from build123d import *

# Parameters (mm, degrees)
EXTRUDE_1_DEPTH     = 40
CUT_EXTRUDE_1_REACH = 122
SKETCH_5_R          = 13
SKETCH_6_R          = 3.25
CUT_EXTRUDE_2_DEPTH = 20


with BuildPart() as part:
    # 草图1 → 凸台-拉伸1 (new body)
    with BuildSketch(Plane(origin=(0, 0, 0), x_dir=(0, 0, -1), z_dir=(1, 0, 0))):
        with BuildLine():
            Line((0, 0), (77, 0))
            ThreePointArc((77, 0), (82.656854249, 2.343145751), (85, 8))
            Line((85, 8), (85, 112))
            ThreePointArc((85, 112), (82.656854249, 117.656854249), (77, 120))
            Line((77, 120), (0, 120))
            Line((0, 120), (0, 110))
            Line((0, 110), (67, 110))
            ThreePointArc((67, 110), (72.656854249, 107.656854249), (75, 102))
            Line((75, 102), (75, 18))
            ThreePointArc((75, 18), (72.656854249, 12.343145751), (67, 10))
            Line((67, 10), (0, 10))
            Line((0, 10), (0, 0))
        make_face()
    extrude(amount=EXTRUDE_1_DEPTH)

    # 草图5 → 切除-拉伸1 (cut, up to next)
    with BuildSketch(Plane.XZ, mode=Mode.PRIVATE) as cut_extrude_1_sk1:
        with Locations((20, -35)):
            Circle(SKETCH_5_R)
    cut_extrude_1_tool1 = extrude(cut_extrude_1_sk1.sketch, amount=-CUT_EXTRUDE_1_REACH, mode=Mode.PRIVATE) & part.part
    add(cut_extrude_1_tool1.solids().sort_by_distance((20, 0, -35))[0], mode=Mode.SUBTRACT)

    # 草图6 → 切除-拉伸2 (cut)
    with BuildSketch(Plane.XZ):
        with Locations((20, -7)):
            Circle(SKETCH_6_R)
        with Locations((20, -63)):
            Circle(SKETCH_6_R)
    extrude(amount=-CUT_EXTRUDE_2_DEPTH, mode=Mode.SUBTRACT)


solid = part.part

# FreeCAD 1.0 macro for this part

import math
import FreeCAD as App
import Part
import Sketcher

doc = App.newDocument("Part")
body = doc.addObject("PartDesign::Body", "Body")

# Sketch on YZ plane
sketch1 = body.newObject("Sketcher::SketchObject", "Sketch")
sketch1.AttachmentSupport = (doc.getObject("YZ_Plane"), [""])
sketch1.MapMode = "FlatFace"
sketch1.addGeometry([
    Part.LineSegment(App.Vector(0, 0, 0), App.Vector(0, -77, 0)),  # 0
    Part.ArcOfCircle(Part.Circle(App.Vector(8, -77, 0), App.Vector(0, 0, 1), 8), math.radians(-180), math.radians(-90)),  # 1
    Part.LineSegment(App.Vector(8, -85, 0), App.Vector(112, -85, 0)),  # 2
    Part.ArcOfCircle(Part.Circle(App.Vector(112, -77, 0), App.Vector(0, 0, 1), 8), math.radians(-90), math.radians(0)),  # 3
    Part.LineSegment(App.Vector(120, -77, 0), App.Vector(120, 0, 0)),  # 4
    Part.LineSegment(App.Vector(120, 0, 0), App.Vector(110, 0, 0)),  # 5
    Part.LineSegment(App.Vector(110, 0, 0), App.Vector(110, -67, 0)),  # 6
    Part.ArcOfCircle(Part.Circle(App.Vector(102, -67, 0), App.Vector(0, 0, 1), 8), math.radians(-90), math.radians(0)),  # 7
    Part.LineSegment(App.Vector(102, -75, 0), App.Vector(18, -75, 0)),  # 8
    Part.ArcOfCircle(Part.Circle(App.Vector(18, -67, 0), App.Vector(0, 0, 1), 8), math.radians(-180), math.radians(-90)),  # 9
    Part.LineSegment(App.Vector(10, -67, 0), App.Vector(10, 0, 0)),  # 10
    Part.LineSegment(App.Vector(10, 0, 0), App.Vector(0, 0, 0)),  # 11
], False)
sketch1.addConstraint([
    Sketcher.Constraint("Tangent", 0, 2, 1, 1),
    Sketcher.Constraint("Tangent", 1, 2, 2, 1),
    Sketcher.Constraint("Tangent", 2, 2, 3, 1),
    Sketcher.Constraint("Tangent", 3, 2, 4, 1),
    Sketcher.Constraint("Coincident", 4, 2, 5, 1),
    Sketcher.Constraint("Coincident", 5, 2, 6, 1),
    Sketcher.Constraint("Tangent", 6, 2, 7, 2),
    Sketcher.Constraint("Tangent", 7, 1, 8, 1),
    Sketcher.Constraint("Tangent", 8, 2, 9, 2),
    Sketcher.Constraint("Tangent", 9, 1, 10, 1),
    Sketcher.Constraint("Coincident", 10, 2, 11, 1),
    Sketcher.Constraint("Coincident", 11, 2, 0, 1),
    Sketcher.Constraint("Vertical", 0),
    Sketcher.Constraint("Horizontal", 2),
    Sketcher.Constraint("Vertical", 4),
    Sketcher.Constraint("Horizontal", 5),
    Sketcher.Constraint("Vertical", 6),
    Sketcher.Constraint("Horizontal", 8),
    Sketcher.Constraint("Vertical", 10),
    Sketcher.Constraint("Horizontal", 11),
    Sketcher.Constraint("Coincident", 11, 2, -1, 1),
    Sketcher.Constraint("Equal", 1, 3),
    Sketcher.Constraint("Equal", 3, 7),
    Sketcher.Constraint("Equal", 7, 9),
    Sketcher.Constraint("PointOnObject", 4, 2, -1),
    Sketcher.Constraint("Equal", 5, 11),
    Sketcher.Constraint("Radius", 1, 8.0),
    Sketcher.Constraint("DistanceX", 2, 1, 2, 2, 104.0),
    Sketcher.Constraint("DistanceX", 5, 2, 5, 1, 10.0),
    Sketcher.Constraint("DistanceY", 0, 2, 0, 1, 77.0),
    Sketcher.Constraint("DistanceY", 6, 2, 6, 1, 67.0),
])
pad1 = body.newObject("PartDesign::Pad", "Pad")
pad1.Profile = sketch1
pad1.Length = 40

# Sketch on XZ plane
sketch2 = body.newObject("Sketcher::SketchObject", "Sketch001")
sketch2.AttachmentSupport = (doc.getObject("XZ_Plane"), [""])
sketch2.MapMode = "FlatFace"
sketch2.addGeometry(Part.Circle(App.Vector(20, -35, 0), App.Vector(0, 0, 1), 13), False)
sketch2.addConstraint([
    Sketcher.Constraint("Diameter", 0, 26.0),
    Sketcher.Constraint("DistanceX", -1, 1, 0, 3, 20.0),
    Sketcher.Constraint("DistanceY", 0, 3, -1, 1, 35.0),
])
pocket1 = body.newObject("PartDesign::Pocket", "Pocket")
pocket1.Profile = sketch2
pocket1.Type = "UpToFirst"

# Sketch on XZ plane
sketch3 = body.newObject("Sketcher::SketchObject", "Sketch002")
sketch3.AttachmentSupport = (doc.getObject("XZ_Plane"), [""])
sketch3.MapMode = "FlatFace"
sketch3.addGeometry([
    Part.Circle(App.Vector(20, -7, 0), App.Vector(0, 0, 1), 3.25),
    Part.Circle(App.Vector(20, -63, 0), App.Vector(0, 0, 1), 3.25),
], False)
sketch3.addConstraint([
    Sketcher.Constraint("Equal", 0, 1),
    Sketcher.Constraint("Vertical", 0, 3, 1, 3),
    Sketcher.Constraint("Diameter", 0, 6.5),
    Sketcher.Constraint("DistanceX", -1, 1, 0, 3, 20.0),
    Sketcher.Constraint("DistanceY", 0, 3, -1, 1, 7.0),
    Sketcher.Constraint("DistanceY", 1, 3, -1, 1, 63.0),
])
pocket2 = body.newObject("PartDesign::Pocket", "Pocket001")
pocket2.Profile = sketch3
pocket2.Length = 20

doc.recompute()
